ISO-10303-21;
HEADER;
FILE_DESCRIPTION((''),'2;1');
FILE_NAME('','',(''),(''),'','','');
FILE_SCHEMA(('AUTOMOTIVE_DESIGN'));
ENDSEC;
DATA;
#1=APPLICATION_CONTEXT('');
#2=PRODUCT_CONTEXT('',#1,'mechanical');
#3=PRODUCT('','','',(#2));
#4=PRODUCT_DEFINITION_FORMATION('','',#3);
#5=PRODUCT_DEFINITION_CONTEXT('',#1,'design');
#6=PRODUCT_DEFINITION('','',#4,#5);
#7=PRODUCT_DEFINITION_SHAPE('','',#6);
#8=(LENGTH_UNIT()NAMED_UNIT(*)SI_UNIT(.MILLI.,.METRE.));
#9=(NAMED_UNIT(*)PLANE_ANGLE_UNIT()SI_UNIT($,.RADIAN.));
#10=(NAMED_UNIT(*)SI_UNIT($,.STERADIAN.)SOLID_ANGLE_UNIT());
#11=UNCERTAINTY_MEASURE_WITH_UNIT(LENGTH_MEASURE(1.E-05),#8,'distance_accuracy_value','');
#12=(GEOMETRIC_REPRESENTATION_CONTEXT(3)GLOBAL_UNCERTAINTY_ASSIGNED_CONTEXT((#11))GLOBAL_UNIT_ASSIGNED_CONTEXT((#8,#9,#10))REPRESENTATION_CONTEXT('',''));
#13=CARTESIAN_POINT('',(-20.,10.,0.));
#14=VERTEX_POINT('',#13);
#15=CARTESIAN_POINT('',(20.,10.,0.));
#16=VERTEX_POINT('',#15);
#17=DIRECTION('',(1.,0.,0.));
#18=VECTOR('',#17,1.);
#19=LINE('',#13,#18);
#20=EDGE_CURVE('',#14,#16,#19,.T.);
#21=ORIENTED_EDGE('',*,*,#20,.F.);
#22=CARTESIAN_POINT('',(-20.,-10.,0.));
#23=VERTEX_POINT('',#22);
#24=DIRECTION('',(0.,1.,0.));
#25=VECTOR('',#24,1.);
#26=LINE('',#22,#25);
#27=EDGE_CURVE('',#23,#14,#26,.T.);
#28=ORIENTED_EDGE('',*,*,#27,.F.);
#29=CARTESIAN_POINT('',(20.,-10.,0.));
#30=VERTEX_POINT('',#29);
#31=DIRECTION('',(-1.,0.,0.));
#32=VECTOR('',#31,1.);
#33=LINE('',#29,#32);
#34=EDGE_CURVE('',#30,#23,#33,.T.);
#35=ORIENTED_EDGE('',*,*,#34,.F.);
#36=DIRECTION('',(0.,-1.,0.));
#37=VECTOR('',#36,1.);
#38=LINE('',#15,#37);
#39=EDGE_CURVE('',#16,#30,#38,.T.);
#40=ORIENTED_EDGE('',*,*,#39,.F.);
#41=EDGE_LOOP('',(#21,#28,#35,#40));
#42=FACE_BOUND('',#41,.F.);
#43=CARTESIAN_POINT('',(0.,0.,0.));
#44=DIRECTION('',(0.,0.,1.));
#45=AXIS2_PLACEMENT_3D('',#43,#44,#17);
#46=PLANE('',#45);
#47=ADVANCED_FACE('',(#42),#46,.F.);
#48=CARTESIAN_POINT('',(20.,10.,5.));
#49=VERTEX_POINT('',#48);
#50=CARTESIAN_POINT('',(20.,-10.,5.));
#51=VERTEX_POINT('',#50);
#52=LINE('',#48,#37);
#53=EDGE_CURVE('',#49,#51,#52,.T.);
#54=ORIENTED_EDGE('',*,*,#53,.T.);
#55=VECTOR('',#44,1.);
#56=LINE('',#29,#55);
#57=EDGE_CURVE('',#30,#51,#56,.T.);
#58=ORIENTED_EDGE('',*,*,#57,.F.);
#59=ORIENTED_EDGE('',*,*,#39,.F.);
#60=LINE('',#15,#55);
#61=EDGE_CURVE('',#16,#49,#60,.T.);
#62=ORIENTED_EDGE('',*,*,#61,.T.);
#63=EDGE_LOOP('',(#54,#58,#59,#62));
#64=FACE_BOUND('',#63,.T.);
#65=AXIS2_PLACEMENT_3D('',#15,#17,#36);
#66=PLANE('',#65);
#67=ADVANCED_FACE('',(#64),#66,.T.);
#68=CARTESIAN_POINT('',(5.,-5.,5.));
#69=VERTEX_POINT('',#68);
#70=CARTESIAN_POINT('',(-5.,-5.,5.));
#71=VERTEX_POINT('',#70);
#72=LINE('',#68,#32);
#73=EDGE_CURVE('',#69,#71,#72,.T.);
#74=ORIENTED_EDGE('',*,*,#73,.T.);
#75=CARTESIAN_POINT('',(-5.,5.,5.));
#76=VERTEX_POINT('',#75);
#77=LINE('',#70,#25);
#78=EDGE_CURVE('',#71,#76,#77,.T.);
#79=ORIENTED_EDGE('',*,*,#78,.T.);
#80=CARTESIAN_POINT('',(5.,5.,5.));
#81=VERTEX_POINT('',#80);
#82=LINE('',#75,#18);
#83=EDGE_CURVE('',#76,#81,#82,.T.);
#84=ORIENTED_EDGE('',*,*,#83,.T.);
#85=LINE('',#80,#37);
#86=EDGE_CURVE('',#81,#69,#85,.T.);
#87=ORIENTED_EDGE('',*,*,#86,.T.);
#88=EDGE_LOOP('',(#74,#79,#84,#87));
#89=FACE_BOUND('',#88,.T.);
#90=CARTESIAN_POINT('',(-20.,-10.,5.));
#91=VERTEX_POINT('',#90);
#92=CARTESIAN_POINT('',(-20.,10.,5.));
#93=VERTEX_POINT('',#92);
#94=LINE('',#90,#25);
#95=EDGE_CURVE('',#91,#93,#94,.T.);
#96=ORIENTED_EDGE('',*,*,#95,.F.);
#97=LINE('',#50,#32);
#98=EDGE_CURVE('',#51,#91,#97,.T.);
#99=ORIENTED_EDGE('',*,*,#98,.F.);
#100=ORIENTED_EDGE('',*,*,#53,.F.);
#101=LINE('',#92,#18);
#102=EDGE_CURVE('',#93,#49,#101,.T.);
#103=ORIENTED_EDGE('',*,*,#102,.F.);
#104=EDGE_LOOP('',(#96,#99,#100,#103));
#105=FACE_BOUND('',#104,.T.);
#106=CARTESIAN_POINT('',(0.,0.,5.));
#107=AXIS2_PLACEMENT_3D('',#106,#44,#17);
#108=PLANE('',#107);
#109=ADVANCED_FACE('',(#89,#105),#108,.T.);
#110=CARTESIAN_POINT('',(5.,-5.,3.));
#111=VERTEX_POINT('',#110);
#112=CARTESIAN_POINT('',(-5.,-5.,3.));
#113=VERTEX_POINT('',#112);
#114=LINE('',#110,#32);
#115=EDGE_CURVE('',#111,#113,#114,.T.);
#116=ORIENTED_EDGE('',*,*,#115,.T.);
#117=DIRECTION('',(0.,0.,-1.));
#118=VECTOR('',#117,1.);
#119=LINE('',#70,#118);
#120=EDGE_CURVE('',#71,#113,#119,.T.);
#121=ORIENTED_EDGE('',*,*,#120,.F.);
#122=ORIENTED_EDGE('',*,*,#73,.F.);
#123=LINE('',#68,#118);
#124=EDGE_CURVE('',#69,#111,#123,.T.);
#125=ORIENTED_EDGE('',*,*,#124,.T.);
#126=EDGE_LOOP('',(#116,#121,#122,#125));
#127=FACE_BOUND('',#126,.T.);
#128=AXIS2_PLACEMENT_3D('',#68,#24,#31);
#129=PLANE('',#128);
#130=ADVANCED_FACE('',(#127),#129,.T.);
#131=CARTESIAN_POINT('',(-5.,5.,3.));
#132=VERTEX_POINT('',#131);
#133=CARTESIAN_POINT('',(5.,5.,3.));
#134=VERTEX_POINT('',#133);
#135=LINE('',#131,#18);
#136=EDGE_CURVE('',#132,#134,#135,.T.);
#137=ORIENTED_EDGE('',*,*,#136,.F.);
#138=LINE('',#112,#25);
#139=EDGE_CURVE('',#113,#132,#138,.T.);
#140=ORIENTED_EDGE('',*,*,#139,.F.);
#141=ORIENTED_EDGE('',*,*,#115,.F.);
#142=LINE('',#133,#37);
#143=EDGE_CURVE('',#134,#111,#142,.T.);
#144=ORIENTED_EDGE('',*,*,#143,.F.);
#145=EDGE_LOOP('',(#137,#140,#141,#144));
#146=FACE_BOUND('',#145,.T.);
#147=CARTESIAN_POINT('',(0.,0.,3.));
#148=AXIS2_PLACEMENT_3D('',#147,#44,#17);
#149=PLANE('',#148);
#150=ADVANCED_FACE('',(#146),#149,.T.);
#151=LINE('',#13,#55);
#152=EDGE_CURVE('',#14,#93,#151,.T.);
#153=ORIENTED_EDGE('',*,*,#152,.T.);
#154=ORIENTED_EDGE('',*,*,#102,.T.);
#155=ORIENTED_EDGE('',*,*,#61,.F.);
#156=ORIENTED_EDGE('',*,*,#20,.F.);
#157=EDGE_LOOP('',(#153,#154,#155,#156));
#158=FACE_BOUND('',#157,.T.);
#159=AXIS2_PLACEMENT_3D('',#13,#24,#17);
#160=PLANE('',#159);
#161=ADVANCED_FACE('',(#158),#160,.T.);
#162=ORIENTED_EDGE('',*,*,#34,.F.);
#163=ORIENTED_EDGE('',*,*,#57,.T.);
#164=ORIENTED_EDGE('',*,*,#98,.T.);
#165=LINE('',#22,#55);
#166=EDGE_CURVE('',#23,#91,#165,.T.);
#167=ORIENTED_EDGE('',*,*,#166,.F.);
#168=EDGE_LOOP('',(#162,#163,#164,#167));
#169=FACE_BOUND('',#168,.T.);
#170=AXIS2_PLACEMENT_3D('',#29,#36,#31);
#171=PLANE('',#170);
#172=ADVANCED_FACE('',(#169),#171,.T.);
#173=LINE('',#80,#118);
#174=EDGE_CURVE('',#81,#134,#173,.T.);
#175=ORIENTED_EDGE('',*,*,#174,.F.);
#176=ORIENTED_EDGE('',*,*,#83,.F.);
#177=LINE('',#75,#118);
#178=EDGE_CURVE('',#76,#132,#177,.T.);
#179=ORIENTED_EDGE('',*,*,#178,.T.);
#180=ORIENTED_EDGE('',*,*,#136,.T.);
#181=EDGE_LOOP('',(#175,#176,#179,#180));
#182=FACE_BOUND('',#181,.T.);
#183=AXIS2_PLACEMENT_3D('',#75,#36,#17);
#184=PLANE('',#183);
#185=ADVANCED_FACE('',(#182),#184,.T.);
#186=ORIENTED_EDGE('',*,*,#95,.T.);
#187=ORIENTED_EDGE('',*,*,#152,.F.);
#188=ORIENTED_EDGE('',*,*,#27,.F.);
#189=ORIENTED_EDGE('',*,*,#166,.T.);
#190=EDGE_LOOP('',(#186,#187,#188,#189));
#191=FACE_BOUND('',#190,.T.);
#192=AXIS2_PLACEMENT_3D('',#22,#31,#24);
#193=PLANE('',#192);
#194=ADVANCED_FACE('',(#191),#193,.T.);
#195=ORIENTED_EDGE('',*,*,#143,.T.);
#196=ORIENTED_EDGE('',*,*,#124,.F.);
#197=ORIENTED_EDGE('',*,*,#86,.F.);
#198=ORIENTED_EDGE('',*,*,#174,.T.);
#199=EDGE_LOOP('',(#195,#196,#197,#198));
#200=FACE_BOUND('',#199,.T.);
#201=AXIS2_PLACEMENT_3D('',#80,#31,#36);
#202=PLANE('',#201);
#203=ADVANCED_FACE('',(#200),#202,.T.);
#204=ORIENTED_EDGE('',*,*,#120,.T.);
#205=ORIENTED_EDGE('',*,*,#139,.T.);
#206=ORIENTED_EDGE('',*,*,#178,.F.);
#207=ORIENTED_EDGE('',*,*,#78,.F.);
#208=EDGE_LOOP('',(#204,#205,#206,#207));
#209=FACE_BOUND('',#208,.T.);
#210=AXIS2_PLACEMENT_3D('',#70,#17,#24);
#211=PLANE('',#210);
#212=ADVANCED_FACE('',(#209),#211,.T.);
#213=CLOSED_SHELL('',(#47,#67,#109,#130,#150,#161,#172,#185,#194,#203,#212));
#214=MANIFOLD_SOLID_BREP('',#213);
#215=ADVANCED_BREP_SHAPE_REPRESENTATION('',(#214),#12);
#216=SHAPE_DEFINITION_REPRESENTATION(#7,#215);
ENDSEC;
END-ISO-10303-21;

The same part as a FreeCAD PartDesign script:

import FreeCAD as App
import Part
import Sketcher

V = App.Vector
Q = App.Units.Quantity


def add_polygon(sketch, points):
    """Adds a closed chain of lines whose ends are joined by coincident constraints."""
    first, n = sketch.GeometryCount, len(points)
    for a, b in zip(points, points[1:] + points[:1]):
        sketch.addGeometry(Part.LineSegment(App.Vector(*a, 0), App.Vector(*b, 0)), False)
    for i in range(n):
        sketch.addConstraint(Sketcher.Constraint("Coincident", first + i, 2, first + (i + 1) % n, 1))

doc = App.newDocument("Part")
body = doc.addObject("PartDesign::Body", "Body")

sketch1 = body.newObject("Sketcher::SketchObject", "Sketch")
sketch1.AttachmentSupport = (doc.getObject("XY_Plane"), [""])
sketch1.MapMode = "FlatFace"
add_polygon(sketch1, [(-20, 10), (-20, -10), (20, -10), (20, 10)])
sketch1.addConstraint([
    Sketcher.Constraint("Vertical", 0),
    Sketcher.Constraint("Horizontal", 1),
    Sketcher.Constraint("Vertical", 2),
    Sketcher.Constraint("Horizontal", 3),
    Sketcher.Constraint("Symmetric", 0, 2, 2, 2, -1, 1),
    Sketcher.Constraint("DistanceX", 1, 1, 1, 2, Q("40 mm")),
    Sketcher.Constraint("DistanceY", 0, 2, 0, 1, Q("20 mm")),
])
pad1 = body.newObject("PartDesign::Pad", "Pad")
pad1.Profile = sketch1
pad1.Length = 5

sketch2 = body.newObject("Sketcher::SketchObject", "Sketch001")
sketch2.AttachmentSupport = (doc.getObject("XY_Plane"), [""])
sketch2.MapMode = "FlatFace"
sketch2.AttachmentOffset = App.Placement(V(0, 0, 5), App.Rotation())
add_polygon(sketch2, [(-5, 5), (-5, -5), (5, -5), (5, 5)])
sketch2.addConstraint([
    Sketcher.Constraint("Vertical", 0),
    Sketcher.Constraint("Horizontal", 1),
    Sketcher.Constraint("Vertical", 2),
    Sketcher.Constraint("Horizontal", 3),
    Sketcher.Constraint("Symmetric", 0, 2, 2, 2, -1, 1),
    Sketcher.Constraint("Equal", 3, 0),
    Sketcher.Constraint("DistanceX", 1, 1, 1, 2, Q("10 mm")),
])
pocket1 = body.newObject("PartDesign::Pocket", "Pocket")
pocket1.Profile = sketch2
pocket1.Length = 2

doc.recompute()
